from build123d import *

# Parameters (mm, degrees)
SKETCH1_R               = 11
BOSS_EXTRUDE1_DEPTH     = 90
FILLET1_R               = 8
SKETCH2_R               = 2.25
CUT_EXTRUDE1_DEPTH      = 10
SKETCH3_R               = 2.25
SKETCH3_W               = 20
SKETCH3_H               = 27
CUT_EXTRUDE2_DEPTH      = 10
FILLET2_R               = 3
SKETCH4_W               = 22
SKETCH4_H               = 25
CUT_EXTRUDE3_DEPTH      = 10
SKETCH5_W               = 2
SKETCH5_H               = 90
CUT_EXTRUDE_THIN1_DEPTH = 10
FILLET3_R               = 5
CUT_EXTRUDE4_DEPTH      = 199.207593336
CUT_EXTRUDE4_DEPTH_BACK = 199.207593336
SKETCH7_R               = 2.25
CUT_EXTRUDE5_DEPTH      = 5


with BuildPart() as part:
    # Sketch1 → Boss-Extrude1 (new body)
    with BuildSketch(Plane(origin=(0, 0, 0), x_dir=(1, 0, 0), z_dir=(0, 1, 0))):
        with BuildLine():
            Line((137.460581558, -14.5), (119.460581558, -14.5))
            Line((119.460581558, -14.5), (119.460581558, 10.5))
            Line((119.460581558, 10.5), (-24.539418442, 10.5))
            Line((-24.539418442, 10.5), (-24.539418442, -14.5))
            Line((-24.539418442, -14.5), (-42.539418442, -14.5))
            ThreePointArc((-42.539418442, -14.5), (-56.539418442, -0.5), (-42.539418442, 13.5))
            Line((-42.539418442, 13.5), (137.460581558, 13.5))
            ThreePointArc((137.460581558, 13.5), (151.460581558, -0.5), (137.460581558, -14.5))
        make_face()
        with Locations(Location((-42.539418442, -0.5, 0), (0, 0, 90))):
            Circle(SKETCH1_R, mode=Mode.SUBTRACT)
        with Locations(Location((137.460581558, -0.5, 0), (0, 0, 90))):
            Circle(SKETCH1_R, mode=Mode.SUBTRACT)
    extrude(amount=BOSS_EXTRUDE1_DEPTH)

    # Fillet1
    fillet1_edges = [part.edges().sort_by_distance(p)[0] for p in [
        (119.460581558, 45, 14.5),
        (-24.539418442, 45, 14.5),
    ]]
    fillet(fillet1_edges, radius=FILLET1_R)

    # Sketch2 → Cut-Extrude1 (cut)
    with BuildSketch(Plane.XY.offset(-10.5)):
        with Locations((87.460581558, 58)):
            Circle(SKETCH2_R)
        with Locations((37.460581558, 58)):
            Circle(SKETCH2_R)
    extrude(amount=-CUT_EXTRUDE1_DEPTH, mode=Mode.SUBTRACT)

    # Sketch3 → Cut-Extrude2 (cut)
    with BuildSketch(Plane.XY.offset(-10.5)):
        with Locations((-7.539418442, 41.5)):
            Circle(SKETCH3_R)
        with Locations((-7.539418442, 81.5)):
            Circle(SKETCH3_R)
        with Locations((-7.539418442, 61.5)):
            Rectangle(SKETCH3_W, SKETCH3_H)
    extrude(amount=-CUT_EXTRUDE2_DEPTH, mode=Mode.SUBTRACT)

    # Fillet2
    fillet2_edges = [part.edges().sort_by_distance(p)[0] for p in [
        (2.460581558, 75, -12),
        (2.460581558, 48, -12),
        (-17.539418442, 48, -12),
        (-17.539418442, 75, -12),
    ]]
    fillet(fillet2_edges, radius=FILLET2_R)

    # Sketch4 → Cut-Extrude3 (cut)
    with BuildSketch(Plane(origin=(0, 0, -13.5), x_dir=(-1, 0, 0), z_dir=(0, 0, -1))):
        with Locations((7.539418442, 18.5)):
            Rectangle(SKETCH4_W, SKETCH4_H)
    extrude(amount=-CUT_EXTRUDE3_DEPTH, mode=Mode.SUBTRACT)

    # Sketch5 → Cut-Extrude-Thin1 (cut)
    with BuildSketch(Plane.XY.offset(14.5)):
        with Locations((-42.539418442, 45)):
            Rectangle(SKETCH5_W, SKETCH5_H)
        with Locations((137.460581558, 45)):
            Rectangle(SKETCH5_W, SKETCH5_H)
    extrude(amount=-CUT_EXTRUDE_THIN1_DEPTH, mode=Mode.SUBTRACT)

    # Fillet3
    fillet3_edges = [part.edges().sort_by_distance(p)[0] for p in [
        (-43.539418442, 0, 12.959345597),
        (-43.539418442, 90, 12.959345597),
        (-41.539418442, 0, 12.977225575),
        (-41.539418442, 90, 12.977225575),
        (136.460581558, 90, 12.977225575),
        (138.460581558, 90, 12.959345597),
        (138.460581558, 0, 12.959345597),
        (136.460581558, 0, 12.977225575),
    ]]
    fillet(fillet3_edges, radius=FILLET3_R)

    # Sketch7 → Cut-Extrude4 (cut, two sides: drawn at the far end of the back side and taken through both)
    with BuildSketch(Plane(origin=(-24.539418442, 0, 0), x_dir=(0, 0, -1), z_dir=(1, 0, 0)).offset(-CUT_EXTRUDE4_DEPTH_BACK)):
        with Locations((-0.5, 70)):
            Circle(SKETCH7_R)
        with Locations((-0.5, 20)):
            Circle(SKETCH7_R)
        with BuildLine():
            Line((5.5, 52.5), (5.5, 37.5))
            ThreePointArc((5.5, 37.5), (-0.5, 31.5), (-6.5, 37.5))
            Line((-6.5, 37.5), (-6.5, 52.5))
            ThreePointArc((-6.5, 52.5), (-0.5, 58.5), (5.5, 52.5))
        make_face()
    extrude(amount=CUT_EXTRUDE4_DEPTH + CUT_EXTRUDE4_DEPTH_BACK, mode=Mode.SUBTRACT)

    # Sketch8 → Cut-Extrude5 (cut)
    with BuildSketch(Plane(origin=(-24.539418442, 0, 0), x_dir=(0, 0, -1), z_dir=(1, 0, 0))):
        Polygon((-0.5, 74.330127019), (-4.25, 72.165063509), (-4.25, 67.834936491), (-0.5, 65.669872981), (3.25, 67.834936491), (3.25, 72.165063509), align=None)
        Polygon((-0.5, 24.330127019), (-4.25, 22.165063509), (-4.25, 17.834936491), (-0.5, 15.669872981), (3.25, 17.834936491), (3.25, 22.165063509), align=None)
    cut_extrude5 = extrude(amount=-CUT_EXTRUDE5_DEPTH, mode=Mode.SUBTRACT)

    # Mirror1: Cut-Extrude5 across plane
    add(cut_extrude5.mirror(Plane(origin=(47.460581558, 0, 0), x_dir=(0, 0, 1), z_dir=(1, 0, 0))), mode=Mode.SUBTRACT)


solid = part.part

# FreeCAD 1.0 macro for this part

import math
import FreeCAD as App
import Part
import Sketcher
from FreeCAD import Vector
Q = App.Units.Quantity


def edges_at(feature, points):
    """Names of the edges that pass closest to the given points."""
    edges = feature.Shape.Edges
    near = lambda p: min(range(len(edges)), key=lambda i: edges[i].distToShape(Part.Vertex(*p))[0])
    return sorted({f"Edge{near(p) + 1}" for p in points})

doc = App.newDocument("Part")
body = doc.addObject("PartDesign::Body", "Body")

sketch1 = body.newObject("Sketcher::SketchObject", "Sketch")
sketch1.AttachmentSupport = (doc.getObject("XZ_Plane"), [""])
sketch1.MapMode = "FlatFace"
sketch1.addGeometry([
    Part.LineSegment(Vector(119, 14, 0), Vector(137, 14, 0)),
    Part.ArcOfCircle(Part.Circle(Vector(137, 0, 0), Vector(0, 0, 1), 14), math.radians(-90), math.radians(90)),
    Part.LineSegment(Vector(137, -14, 0), Vector(-43, -14, 0)),
    Part.ArcOfCircle(Part.Circle(Vector(-43, 0, 0), Vector(0, 0, 1), 14), math.radians(90), math.radians(270)),
    Part.LineSegment(Vector(-43, 14, 0), Vector(-25, 14, 0)),
    Part.LineSegment(Vector(-25, 14, 0), Vector(-25, -10, 0)),
    Part.LineSegment(Vector(-25, -10, 0), Vector(119, -10, 0)),
    Part.LineSegment(Vector(119, -10, 0), Vector(119, 14, 0)),
    Part.Circle(Vector(137, 0, 0), Vector(0, 0, 1), 11),
    Part.Circle(Vector(-43, 0, 0), Vector(0, 0, 1), 11),
], False)
sketch1.addConstraint([
    Sketcher.Constraint("Tangent", 0, 2, 1, 2),
    Sketcher.Constraint("Tangent", 1, 1, 2, 1),
    Sketcher.Constraint("Tangent", 2, 2, 3, 2),
    Sketcher.Constraint("Tangent", 3, 1, 4, 1),
    Sketcher.Constraint("Coincident", 4, 2, 5, 1),
    Sketcher.Constraint("Coincident", 5, 2, 6, 1),
    Sketcher.Constraint("Coincident", 6, 2, 7, 1),
    Sketcher.Constraint("Coincident", 7, 2, 0, 1),
    Sketcher.Constraint("Horizontal", 0),
    Sketcher.Constraint("Horizontal", 2),
    Sketcher.Constraint("Horizontal", 4),
    Sketcher.Constraint("Vertical", 5),
    Sketcher.Constraint("Horizontal", 6),
    Sketcher.Constraint("Vertical", 7),
    Sketcher.Constraint("Coincident", 8, 3, 1, 3),
    Sketcher.Constraint("Coincident", 9, 3, 3, 3),
    Sketcher.Constraint("Equal", 1, 3),
    Sketcher.Constraint("Equal", 8, 9),
    Sketcher.Constraint("Equal", 0, 4),
    Sketcher.Constraint("Diameter", 8, 22.0),
    Sketcher.Constraint("Radius", 1, 14.0),
    Sketcher.Constraint("DistanceX", 0, 1, 0, 2, 18.0),
    Sketcher.Constraint("DistanceX", 2, 2, 2, 1, 180.0),
    Sketcher.Constraint("DistanceY", 5, 2, 5, 1, 25.0),
    Sketcher.Constraint("DistanceY", -1, 1, 1, 3, 0.5),
    Sketcher.Constraint("DistanceX", -1, 1, 1, 3, 137.460582),
])
pad1 = body.newObject("PartDesign::Pad", "Pad")
pad1.Profile = sketch1
pad1.Length = 90
pad1.Reversed = True
doc.recompute()

fillet = body.newObject("PartDesign::Fillet", "Fillet")
fillet.Base = (pad1, edges_at(pad1, [(119.461, 45, 14.5), (-24.539, 45, 14.5)]))
fillet.Radius = 8

sketch2 = body.newObject("Sketcher::SketchObject", "Sketch001")
sketch2.AttachmentSupport = (doc.getObject("XY_Plane"), [""])
sketch2.MapMode = "FlatFace"
sketch2.AttachmentOffset = App.Placement(Vector(0, 0, -10.5), App.Rotation())
sketch2.addGeometry([
    Part.Circle(Vector(87.5, 58, 0), Vector(0, 0, 1), 2.2),
    Part.Circle(Vector(37.5, 58, 0), Vector(0, 0, 1), 2.2),
], False)
sketch2.addConstraint([
    Sketcher.Constraint("Equal", 0, 1),
    Sketcher.Constraint("Horizontal", 0, 3, 1, 3),
    Sketcher.Constraint("Diameter", 0, 4.5),
    Sketcher.Constraint("DistanceY", -1, 1, 0, 3, 58.0),
    Sketcher.Constraint("DistanceX", 1, 3, 0, 3, 50.0),
    Sketcher.Constraint("DistanceX", -1, 1, 0, 3, 87.460582),
])
pocket1 = body.newObject("PartDesign::Pocket", "Pocket")
pocket1.Profile = sketch2
pocket1.Length = 10

sketch3 = body.newObject("Sketcher::SketchObject", "Sketch002")
sketch3.AttachmentSupport = (doc.getObject("XY_Plane"), [""])
sketch3.MapMode = "FlatFace"
sketch3.AttachmentOffset = App.Placement(Vector(0, 0, -10.5), App.Rotation())
sketch3.addGeometry([
    Part.Circle(Vector(-7.5, 41.5, 0), Vector(0, 0, 1), 2.2),
    Part.Circle(Vector(-7.5, 81.5, 0), Vector(0, 0, 1), 2.2),
    Part.LineSegment(Vector(-17.5, 75, 0), Vector(-17.5, 48, 0)),
    Part.LineSegment(Vector(-17.5, 48, 0), Vector(2.5, 48, 0)),
    Part.LineSegment(Vector(2.5, 48, 0), Vector(2.5, 75, 0)),
    Part.LineSegment(Vector(2.5, 75, 0), Vector(-17.5, 75, 0)),
], False)
sketch3.addConstraint([
    Sketcher.Constraint("Coincident", 2, 2, 3, 1),
    Sketcher.Constraint("Coincident", 3, 2, 4, 1),
    Sketcher.Constraint("Coincident", 4, 2, 5, 1),
    Sketcher.Constraint("Coincident", 5, 2, 2, 1),
    Sketcher.Constraint("Vertical", 2),
    Sketcher.Constraint("Horizontal", 3),
    Sketcher.Constraint("Vertical", 4),
    Sketcher.Constraint("Horizontal", 5),
    Sketcher.Constraint("Equal", 0, 1),
    Sketcher.Constraint("Vertical", 0, 3, 1, 3),
    Sketcher.Constraint("Diameter", 0, 4.5),
    Sketcher.Constraint("DistanceX", 3, 1, 3, 2, 20.0),
    Sketcher.Constraint("DistanceY", 2, 2, 2, 1, 27.0),
    Sketcher.Constraint("DistanceY", -1, 1, 2, 2, 48.0),
    Sketcher.Constraint("DistanceY", 0, 3, 1, 3, 40.0),
    Sketcher.Constraint("DistanceX", 2, 2, 0, 3, 10.0),
    Sketcher.Constraint("DistanceY", -1, 1, 0, 3, 41.5),
    Sketcher.Constraint("DistanceX", 0, 3, -1, 1, 7.539418),
])
pocket2 = body.newObject("PartDesign::Pocket", "Pocket001")
pocket2.Profile = sketch3
pocket2.Length = 10
doc.recompute()

fillet2 = body.newObject("PartDesign::Fillet", "Fillet001")
fillet2.Base = (pocket2, edges_at(pocket2, [
    (2.461, 75, -12),
    (2.461, 48, -12),
    (-17.539, 48, -12),
    (-17.539, 75, -12),
]))
fillet2.Radius = 3

sketch4 = body.newObject("Sketcher::SketchObject", "Sketch003")
sketch4.AttachmentSupport = (doc.getObject("XY_Plane"), [""])
sketch4.MapMode = "FlatFace"
sketch4.AttachmentOffset = App.Placement(Vector(0, 0, -13.5), App.Rotation())
sketch4.addGeometry([
    Part.LineSegment(Vector(3, 31, 0), Vector(3, 6, 0)),
    Part.LineSegment(Vector(3, 6, 0), Vector(-19, 6, 0)),
    Part.LineSegment(Vector(-19, 6, 0), Vector(-19, 31, 0)),
    Part.LineSegment(Vector(-19, 31, 0), Vector(3, 31, 0)),
], False)
sketch4.addConstraint([
    Sketcher.Constraint("Coincident", 0, 2, 1, 1),
    Sketcher.Constraint("Coincident", 1, 2, 2, 1),
    Sketcher.Constraint("Coincident", 2, 2, 3, 1),
    Sketcher.Constraint("Coincident", 3, 2, 0, 1),
    Sketcher.Constraint("Vertical", 0),
    Sketcher.Constraint("Horizontal", 1),
    Sketcher.Constraint("Vertical", 2),
    Sketcher.Constraint("Horizontal", 3),
    Sketcher.Constraint("DistanceX", 1, 2, 1, 1, 22.0),
    Sketcher.Constraint("DistanceY", 0, 2, 0, 1, 25.0),
    Sketcher.Constraint("DistanceY", -1, 1, 0, 2, 6.0),
    Sketcher.Constraint("DistanceX", -1, 1, 0, 2, 3.460582),
])
pocket3 = body.newObject("PartDesign::Pocket", "Pocket002")
pocket3.Profile = sketch4
pocket3.Length = 10
pocket3.Reversed = True

sketch5 = body.newObject("Sketcher::SketchObject", "Sketch004")
sketch5.AttachmentSupport = (doc.getObject("XY_Plane"), [""])
sketch5.MapMode = "FlatFace"
sketch5.AttachmentOffset = App.Placement(Vector(0, 0, 14.5), App.Rotation())
sketch5.addGeometry([
    Part.LineSegment(Vector(-43.5, 90, 0), Vector(-43.5, 0, 0)),
    Part.LineSegment(Vector(-43.5, 0, 0), Vector(-41.5, 0, 0)),
    Part.LineSegment(Vector(-41.5, 0, 0), Vector(-41.5, 90, 0)),
    Part.LineSegment(Vector(-41.5, 90, 0), Vector(-43.5, 90, 0)),
    Part.LineSegment(Vector(136.5, 90, 0), Vector(136.5, 0, 0)),
    Part.LineSegment(Vector(136.5, 0, 0), Vector(138.5, 0, 0)),
    Part.LineSegment(Vector(138.5, 0, 0), Vector(138.5, 90, 0)),
    Part.LineSegment(Vector(138.5, 90, 0), Vector(136.5, 90, 0)),
], False)
sketch5.addConstraint([
    Sketcher.Constraint("Coincident", 0, 2, 1, 1),
    Sketcher.Constraint("Coincident", 1, 2, 2, 1),
    Sketcher.Constraint("Coincident", 2, 2, 3, 1),
    Sketcher.Constraint("Coincident", 3, 2, 0, 1),
    Sketcher.Constraint("Coincident", 4, 2, 5, 1),
    Sketcher.Constraint("Coincident", 5, 2, 6, 1),
    Sketcher.Constraint("Coincident", 6, 2, 7, 1),
    Sketcher.Constraint("Coincident", 7, 2, 4, 1),
    Sketcher.Constraint("Vertical", 0),
    Sketcher.Constraint("Horizontal", 1),
    Sketcher.Constraint("Vertical", 2),
    Sketcher.Constraint("Horizontal", 3),
    Sketcher.Constraint("Vertical", 4),
    Sketcher.Constraint("Horizontal", 5),
    Sketcher.Constraint("Vertical", 6),
    Sketcher.Constraint("Horizontal", 7),
    Sketcher.Constraint("PointOnObject", 0, 2, -1),
    Sketcher.Constraint("PointOnObject", 4, 2, -1),
    Sketcher.Constraint("Horizontal", 3, 2, 6, 2),
    Sketcher.Constraint("Equal", 3, 5),
    Sketcher.Constraint("DistanceX", 1, 1, 1, 2, 2.0),
    Sketcher.Constraint("DistanceY", 0, 2, 0, 1, 90.0),
    Sketcher.Constraint("DistanceX", 1, 2, 4, 2, 178.0),
    Sketcher.Constraint("DistanceX", 0, 2, -1, 1, 43.539418),
])
pocket4 = body.newObject("PartDesign::Pocket", "Pocket003")
pocket4.Profile = sketch5
pocket4.Length = 10
doc.recompute()

fillet3 = body.newObject("PartDesign::Fillet", "Fillet002")
fillet3.Base = (pocket4, edges_at(pocket4, [
    (-43.539, 0, 12.959),
    (-43.539, 90, 12.959),
    (-41.539, 0, 12.977),
    (-41.539, 90, 12.977),
    (136.461, 90, 12.977),
    (138.461, 90, 12.959),
    (138.461, 0, 12.959),
    (136.461, 0, 12.977),
]))
fillet3.Radius = 5

sketch6 = body.newObject("Sketcher::SketchObject", "Sketch005")
sketch6.AttachmentSupport = (doc.getObject("YZ_Plane"), [""])
sketch6.MapMode = "FlatFace"
sketch6.AttachmentOffset = App.Placement(Vector(0, 0, -24.539418), App.Rotation())
sketch6.addGeometry([
    Part.Circle(Vector(70, 0.5, 0), Vector(0, 0, 1), 2.2),
    Part.Circle(Vector(20, 0.5, 0), Vector(0, 0, 1), 2.2),
    Part.LineSegment(Vector(37.5, -5.5, 0), Vector(52.5, -5.5, 0)),
    Part.ArcOfCircle(Part.Circle(Vector(52.5, 0.5, 0), Vector(0, 0, 1), 6), math.radians(-90), math.radians(90)),
    Part.LineSegment(Vector(52.5, 6.5, 0), Vector(37.5, 6.5, 0)),
    Part.ArcOfCircle(Part.Circle(Vector(37.5, 0.5, 0), Vector(0, 0, 1), 6), math.radians(90), math.radians(270)),
], False)
sketch6.addConstraint([
    Sketcher.Constraint("Tangent", 2, 2, 3, 1),
    Sketcher.Constraint("Tangent", 3, 2, 4, 1),
    Sketcher.Constraint("Tangent", 4, 2, 5, 1),
    Sketcher.Constraint("Tangent", 5, 2, 2, 1),
    Sketcher.Constraint("Horizontal", 2),
    Sketcher.Constraint("Horizontal", 4),
    Sketcher.Constraint("Equal", 0, 1),
    Sketcher.Constraint("Horizontal", 0, 3, 1, 3),
    Sketcher.Constraint("Horizontal", 1, 3, 3, 3),
    Sketcher.Constraint("Radius", 3, 6.0),
    Sketcher.Constraint("Diameter", 0, 4.5),
    Sketcher.Constraint("DistanceX", 2, 1, 2, 2, 15.0),
    Sketcher.Constraint("DistanceX", -1, 1, 0, 3, 70.0),
    Sketcher.Constraint("DistanceX", -1, 1, 1, 3, 20.0),
    Sketcher.Constraint("DistanceY", -1, 1, 0, 3, 0.5),
    Sketcher.Constraint("DistanceX", -1, 1, 3, 3, 52.5),
])
pocket5 = body.newObject("PartDesign::Pocket", "Pocket004")
pocket5.Profile = sketch6
pocket5.Type = "ThroughAll"
pocket5.Midplane = True

sketch7 = body.newObject("Sketcher::SketchObject", "Sketch006")
sketch7.AttachmentSupport = (doc.getObject("YZ_Plane"), [""])
sketch7.MapMode = "FlatFace"
sketch7.AttachmentOffset = App.Placement(Vector(0, 0, -24.539418), App.Rotation())
sketch7.addGeometry([
    Part.LineSegment(Vector(74.3, 0.5, 0), Vector(72.2, 4.2, 0)),
    Part.LineSegment(Vector(72.2, 4.2, 0), Vector(67.8, 4.2, 0)),
    Part.LineSegment(Vector(67.8, 4.2, 0), Vector(65.7, 0.5, 0)),
    Part.LineSegment(Vector(65.7, 0.5, 0), Vector(67.8, -3.2, 0)),
    Part.LineSegment(Vector(67.8, -3.2, 0), Vector(72.2, -3.2, 0)),
    Part.LineSegment(Vector(72.2, -3.2, 0), Vector(74.3, 0.5, 0)),
    Part.LineSegment(Vector(24.3, 0.5, 0), Vector(22.2, 4.2, 0)),
    Part.LineSegment(Vector(22.2, 4.2, 0), Vector(17.8, 4.2, 0)),
    Part.LineSegment(Vector(17.8, 4.2, 0), Vector(15.7, 0.5, 0)),
    Part.LineSegment(Vector(15.7, 0.5, 0), Vector(17.8, -3.2, 0)),
    Part.LineSegment(Vector(17.8, -3.2, 0), Vector(22.2, -3.2, 0)),
    Part.LineSegment(Vector(22.2, -3.2, 0), Vector(24.3, 0.5, 0)),
], False)
sketch7.addConstraint([
    Sketcher.Constraint("Coincident", 0, 2, 1, 1),
    Sketcher.Constraint("Coincident", 1, 2, 2, 1),
    Sketcher.Constraint("Coincident", 2, 2, 3, 1),
    Sketcher.Constraint("Coincident", 3, 2, 4, 1),
    Sketcher.Constraint("Coincident", 4, 2, 5, 1),
    Sketcher.Constraint("Coincident", 5, 2, 0, 1),
    Sketcher.Constraint("Coincident", 6, 2, 7, 1),
    Sketcher.Constraint("Coincident", 7, 2, 8, 1),
    Sketcher.Constraint("Coincident", 8, 2, 9, 1),
    Sketcher.Constraint("Coincident", 9, 2, 10, 1),
    Sketcher.Constraint("Coincident", 10, 2, 11, 1),
    Sketcher.Constraint("Coincident", 11, 2, 6, 1),
    Sketcher.Constraint("Horizontal", 1),
    Sketcher.Constraint("Horizontal", 4),
    Sketcher.Constraint("Horizontal", 7),
    Sketcher.Constraint("Horizontal", 10),
    Sketcher.Constraint("Parallel", 0, 3),
    Sketcher.Constraint("Parallel", 2, 5),
    Sketcher.Constraint("Parallel", 3, 6),
    Sketcher.Constraint("Parallel", 5, 8),
    Sketcher.Constraint("Parallel", 6, 9),
    Sketcher.Constraint("Parallel", 8, 11),
    Sketcher.Constraint("Horizontal", 2, 2, 5, 2),
    Sketcher.Constraint("Horizontal", 1, 2, 6, 2),
    Sketcher.Constraint("Horizontal", 5, 2, 8, 2),
    Sketcher.Constraint("Horizontal", 4, 2, 9, 2),
    Sketcher.Constraint("Horizontal", 8, 2, 11, 2),
    Sketcher.Constraint("Vertical", 1, 2, 3, 2),
    Sketcher.Constraint("Vertical", 0, 2, 4, 2),
    Sketcher.Constraint("Equal", 4, 7),
    Sketcher.Constraint("Angle", 0, Q("120 deg")),
    Sketcher.Constraint("DistanceX", 6, 2, 0, 2, 50.0),
    Sketcher.Constraint("DistanceY", -1, 1, 2, 2, 0.5),
    Sketcher.Constraint("DistanceY", 3, 2, 1, 2, 7.5),
    Sketcher.Constraint("DistanceX", 1, 2, 1, 1, 4.330127),
    Sketcher.Constraint("DistanceX", -1, 1, 0, 2, 72.165064),
])
pocket6 = body.newObject("PartDesign::Pocket", "Pocket005")
pocket6.Profile = sketch7
pocket6.Length = 5
doc.recompute()

datumplane = body.newObject("PartDesign::Plane", "DatumPlane")
datumplane.AttachmentSupport = (doc.getObject("YZ_Plane"), [""])
datumplane.MapMode = "FlatFace"
datumplane.AttachmentOffset = App.Placement(Vector(0, 0, 47.460582), App.Rotation())
mirrored = body.newObject("PartDesign::Mirrored", "Mirrored")
mirrored.Originals = [pocket6]
mirrored.MirrorPlane = (datumplane, [""])
body.Tip = mirrored

doc.recompute()
